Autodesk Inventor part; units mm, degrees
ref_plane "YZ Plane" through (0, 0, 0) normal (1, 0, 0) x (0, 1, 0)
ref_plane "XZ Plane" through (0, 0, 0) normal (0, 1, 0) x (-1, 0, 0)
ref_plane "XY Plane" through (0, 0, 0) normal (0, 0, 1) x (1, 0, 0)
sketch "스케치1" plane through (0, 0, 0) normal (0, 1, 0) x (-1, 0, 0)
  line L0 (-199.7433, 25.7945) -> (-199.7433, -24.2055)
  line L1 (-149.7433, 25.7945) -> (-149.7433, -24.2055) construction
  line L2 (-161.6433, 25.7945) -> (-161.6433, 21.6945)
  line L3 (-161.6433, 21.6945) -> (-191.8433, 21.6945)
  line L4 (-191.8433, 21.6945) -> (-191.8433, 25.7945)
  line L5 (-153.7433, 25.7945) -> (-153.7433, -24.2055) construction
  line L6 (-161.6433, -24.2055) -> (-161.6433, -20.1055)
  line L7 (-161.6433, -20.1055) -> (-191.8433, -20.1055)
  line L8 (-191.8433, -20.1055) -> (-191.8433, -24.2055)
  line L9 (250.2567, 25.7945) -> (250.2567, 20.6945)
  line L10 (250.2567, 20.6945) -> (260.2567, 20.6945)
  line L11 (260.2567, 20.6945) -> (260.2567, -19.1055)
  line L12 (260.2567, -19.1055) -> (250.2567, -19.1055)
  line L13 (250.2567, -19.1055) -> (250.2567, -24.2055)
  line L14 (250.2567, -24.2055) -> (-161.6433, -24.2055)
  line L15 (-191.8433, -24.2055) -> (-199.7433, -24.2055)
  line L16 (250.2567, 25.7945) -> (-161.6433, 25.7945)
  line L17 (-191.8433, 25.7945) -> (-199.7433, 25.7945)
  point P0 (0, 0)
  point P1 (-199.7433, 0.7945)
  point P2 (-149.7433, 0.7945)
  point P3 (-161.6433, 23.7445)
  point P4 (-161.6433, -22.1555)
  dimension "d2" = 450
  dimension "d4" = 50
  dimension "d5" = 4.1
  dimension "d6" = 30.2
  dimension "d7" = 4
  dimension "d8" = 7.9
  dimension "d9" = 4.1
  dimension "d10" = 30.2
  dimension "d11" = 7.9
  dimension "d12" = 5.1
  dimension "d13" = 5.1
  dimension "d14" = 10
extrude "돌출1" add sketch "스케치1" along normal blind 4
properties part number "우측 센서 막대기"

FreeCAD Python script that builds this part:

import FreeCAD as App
import Part
import Sketcher

V = App.Vector


def add_polygon(sketch, points):
    """Adds a closed chain of lines whose ends are joined by coincident constraints."""
    first, n = sketch.GeometryCount, len(points)
    for a, b in zip(points, points[1:] + points[:1]):
        sketch.addGeometry(Part.LineSegment(App.Vector(*a, 0), App.Vector(*b, 0)), False)
    for i in range(n):
        sketch.addConstraint(Sketcher.Constraint("Coincident", first + i, 2, first + (i + 1) % n, 1))

doc = App.newDocument("Part")
body = doc.addObject("PartDesign::Body", "Body")

sketch1 = body.newObject("Sketcher::SketchObject", "Sketch")
sketch1.AttachmentSupport = (doc.getObject("XZ_Plane"), [""])
sketch1.MapMode = "FlatFace"
add_polygon(sketch1, [(191.8, 25.8), (199.7, 25.8), (199.7, -24.2), (191.8, -24.2), (191.8, -20.1), (161.6, -20.1), (161.6, -24.2), (-250.3, -24.2), (-250.3, -19.1), (-260.3, -19.1), (-260.3, 20.7), (-250.3, 20.7), (-250.3, 25.8), (161.6, 25.8), (161.6, 21.7), (191.8, 21.7)])
sketch1.addConstraint(Sketcher.Constraint("Horizontal", 0))
sketch1.addConstraint(Sketcher.Constraint("Vertical", 1))
sketch1.addConstraint(Sketcher.Constraint("Horizontal", 2))
sketch1.addConstraint(Sketcher.Constraint("Vertical", 3))
sketch1.addConstraint(Sketcher.Constraint("Horizontal", 4))
sketch1.addConstraint(Sketcher.Constraint("Vertical", 5))
sketch1.addConstraint(Sketcher.Constraint("Horizontal", 6))
sketch1.addConstraint(Sketcher.Constraint("Vertical", 7))
sketch1.addConstraint(Sketcher.Constraint("Horizontal", 8))
sketch1.addConstraint(Sketcher.Constraint("Vertical", 9))
sketch1.addConstraint(Sketcher.Constraint("Horizontal", 10))
sketch1.addConstraint(Sketcher.Constraint("Vertical", 11))
sketch1.addConstraint(Sketcher.Constraint("Horizontal", 12))
sketch1.addConstraint(Sketcher.Constraint("Vertical", 13))
sketch1.addConstraint(Sketcher.Constraint("Horizontal", 14))
sketch1.addConstraint(Sketcher.Constraint("Vertical", 15))
sketch1.addConstraint(Sketcher.Constraint("Horizontal", 2, 2, 5, 2))
sketch1.addConstraint(Sketcher.Constraint("Horizontal", 0, 2, 11, 2))
sketch1.addConstraint(Sketcher.Constraint("Vertical", 7, 2, 10, 2))
sketch1.addConstraint(Sketcher.Constraint("Vertical", 5, 2, 12, 2))
sketch1.addConstraint(Sketcher.Constraint("Vertical", 3, 2, 14, 2))
sketch1.addConstraint(Sketcher.Constraint("Equal", 7, 11))
sketch1.addConstraint(Sketcher.Constraint("Equal", 5, 13))
sketch1.addConstraint(Sketcher.Constraint("DistanceX", 8, 2, 8, 1, 10.0))
sketch1.addConstraint(Sketcher.Constraint("DistanceY", 1, 2, 1, 1, 50.0))
sketch1.addConstraint(Sketcher.Constraint("DistanceX", 0, 1, 0, 2, 7.9))
sketch1.addConstraint(Sketcher.Constraint("DistanceX", 4, 2, 4, 1, 30.2))
sketch1.addConstraint(Sketcher.Constraint("DistanceY", 3, 1, 3, 2, 4.1))
sketch1.addConstraint(Sketcher.Constraint("DistanceY", 7, 1, 7, 2, 5.1))
sketch1.addConstraint(Sketcher.Constraint("DistanceX", 6, 2, 1, 2, 450.0))
sketch1.addConstraint(Sketcher.Constraint("DistanceX", -1, 1, 0, 2, 199.7433))
sketch1.addConstraint(Sketcher.Constraint("DistanceY", -1, 1, 0, 2, 25.7945))
pad1 = body.newObject("PartDesign::Pad", "Pad")
pad1.Profile = sketch1
pad1.Length = 4
pad1.Reversed = True

doc.recompute()
